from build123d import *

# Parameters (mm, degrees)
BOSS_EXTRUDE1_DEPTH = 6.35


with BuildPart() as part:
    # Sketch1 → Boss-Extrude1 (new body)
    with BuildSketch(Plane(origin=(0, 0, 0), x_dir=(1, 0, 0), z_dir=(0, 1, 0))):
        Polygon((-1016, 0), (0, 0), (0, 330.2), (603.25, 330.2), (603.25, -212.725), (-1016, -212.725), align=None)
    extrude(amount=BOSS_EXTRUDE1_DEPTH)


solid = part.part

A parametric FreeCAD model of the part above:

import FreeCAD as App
import Part
import Sketcher

V = App.Vector
Q = App.Units.Quantity

doc = App.newDocument("Part")
params = doc.addObject("Spreadsheet::Sheet", "Params")
for row, (alias, value) in enumerate([
    ("sketch1_width", "40 in"),
    ("sketch1_height", "13 in"),
    ("sketch1_width2", "63.75 in"),
    ("sketch1_height2", "8.375 in"),
    ("pad1_length", "0.25 in"),
], start=1):
    params.set(f"A{row}", alias)
    params.set(f"B{row}", "=" + value)
    params.setAlias(f"B{row}", alias)

body = doc.addObject("PartDesign::Body", "Body")

# Sketch on XZ plane
sketch1 = body.newObject("Sketcher::SketchObject", "Sketch")
sketch1.AttachmentSupport = (doc.getObject("XZ_Plane"), [""])
sketch1.MapMode = "FlatFace"
sketch1.addGeometry([
    Part.LineSegment(V(0, 0, 0), V(-1016, 0, 0)),  # 0
    Part.LineSegment(V(-1016, 0, 0), V(-1016, 213, 0)),  # 1
    Part.LineSegment(V(-1016, 213, 0), V(603, 213, 0)),  # 2
    Part.LineSegment(V(603, 213, 0), V(603, -330, 0)),  # 3
    Part.LineSegment(V(603, -330, 0), V(0, -330, 0)),  # 4
    Part.LineSegment(V(0, -330, 0), V(0, 0, 0)),  # 5
], False)
sketch1.addConstraint([
    Sketcher.Constraint("Coincident", 0, 2, 1, 1),
    Sketcher.Constraint("Coincident", 1, 2, 2, 1),
    Sketcher.Constraint("Coincident", 2, 2, 3, 1),
    Sketcher.Constraint("Coincident", 3, 2, 4, 1),
    Sketcher.Constraint("Coincident", 4, 2, 5, 1),
    Sketcher.Constraint("Coincident", 5, 2, 0, 1),
    Sketcher.Constraint("Horizontal", 0),
    Sketcher.Constraint("Vertical", 1),
    Sketcher.Constraint("Horizontal", 2),
    Sketcher.Constraint("Vertical", 3),
    Sketcher.Constraint("Horizontal", 4),
    Sketcher.Constraint("Vertical", 5),
    Sketcher.Constraint("Coincident", 5, 2, -1, 1),
    Sketcher.Constraint("DistanceX", 0, 2, 0, 1, Q("40 in")),
    Sketcher.Constraint("DistanceY", 5, 1, 5, 2, Q("13 in")),
    Sketcher.Constraint("DistanceX", 2, 1, 2, 2, Q("63.75 in")),
    Sketcher.Constraint("DistanceY", 1, 1, 1, 2, Q("8.375 in")),
])
sketch1.setExpression("Constraints[13]", "Params.sketch1_width")
sketch1.setExpression("Constraints[14]", "Params.sketch1_height")
sketch1.setExpression("Constraints[15]", "Params.sketch1_width2")
sketch1.setExpression("Constraints[16]", "Params.sketch1_height2")
pad1 = body.newObject("PartDesign::Pad", "Pad")
pad1.Profile = sketch1
pad1.setExpression("Length", "Params.pad1_length")
pad1.Reversed = True

doc.recompute()
